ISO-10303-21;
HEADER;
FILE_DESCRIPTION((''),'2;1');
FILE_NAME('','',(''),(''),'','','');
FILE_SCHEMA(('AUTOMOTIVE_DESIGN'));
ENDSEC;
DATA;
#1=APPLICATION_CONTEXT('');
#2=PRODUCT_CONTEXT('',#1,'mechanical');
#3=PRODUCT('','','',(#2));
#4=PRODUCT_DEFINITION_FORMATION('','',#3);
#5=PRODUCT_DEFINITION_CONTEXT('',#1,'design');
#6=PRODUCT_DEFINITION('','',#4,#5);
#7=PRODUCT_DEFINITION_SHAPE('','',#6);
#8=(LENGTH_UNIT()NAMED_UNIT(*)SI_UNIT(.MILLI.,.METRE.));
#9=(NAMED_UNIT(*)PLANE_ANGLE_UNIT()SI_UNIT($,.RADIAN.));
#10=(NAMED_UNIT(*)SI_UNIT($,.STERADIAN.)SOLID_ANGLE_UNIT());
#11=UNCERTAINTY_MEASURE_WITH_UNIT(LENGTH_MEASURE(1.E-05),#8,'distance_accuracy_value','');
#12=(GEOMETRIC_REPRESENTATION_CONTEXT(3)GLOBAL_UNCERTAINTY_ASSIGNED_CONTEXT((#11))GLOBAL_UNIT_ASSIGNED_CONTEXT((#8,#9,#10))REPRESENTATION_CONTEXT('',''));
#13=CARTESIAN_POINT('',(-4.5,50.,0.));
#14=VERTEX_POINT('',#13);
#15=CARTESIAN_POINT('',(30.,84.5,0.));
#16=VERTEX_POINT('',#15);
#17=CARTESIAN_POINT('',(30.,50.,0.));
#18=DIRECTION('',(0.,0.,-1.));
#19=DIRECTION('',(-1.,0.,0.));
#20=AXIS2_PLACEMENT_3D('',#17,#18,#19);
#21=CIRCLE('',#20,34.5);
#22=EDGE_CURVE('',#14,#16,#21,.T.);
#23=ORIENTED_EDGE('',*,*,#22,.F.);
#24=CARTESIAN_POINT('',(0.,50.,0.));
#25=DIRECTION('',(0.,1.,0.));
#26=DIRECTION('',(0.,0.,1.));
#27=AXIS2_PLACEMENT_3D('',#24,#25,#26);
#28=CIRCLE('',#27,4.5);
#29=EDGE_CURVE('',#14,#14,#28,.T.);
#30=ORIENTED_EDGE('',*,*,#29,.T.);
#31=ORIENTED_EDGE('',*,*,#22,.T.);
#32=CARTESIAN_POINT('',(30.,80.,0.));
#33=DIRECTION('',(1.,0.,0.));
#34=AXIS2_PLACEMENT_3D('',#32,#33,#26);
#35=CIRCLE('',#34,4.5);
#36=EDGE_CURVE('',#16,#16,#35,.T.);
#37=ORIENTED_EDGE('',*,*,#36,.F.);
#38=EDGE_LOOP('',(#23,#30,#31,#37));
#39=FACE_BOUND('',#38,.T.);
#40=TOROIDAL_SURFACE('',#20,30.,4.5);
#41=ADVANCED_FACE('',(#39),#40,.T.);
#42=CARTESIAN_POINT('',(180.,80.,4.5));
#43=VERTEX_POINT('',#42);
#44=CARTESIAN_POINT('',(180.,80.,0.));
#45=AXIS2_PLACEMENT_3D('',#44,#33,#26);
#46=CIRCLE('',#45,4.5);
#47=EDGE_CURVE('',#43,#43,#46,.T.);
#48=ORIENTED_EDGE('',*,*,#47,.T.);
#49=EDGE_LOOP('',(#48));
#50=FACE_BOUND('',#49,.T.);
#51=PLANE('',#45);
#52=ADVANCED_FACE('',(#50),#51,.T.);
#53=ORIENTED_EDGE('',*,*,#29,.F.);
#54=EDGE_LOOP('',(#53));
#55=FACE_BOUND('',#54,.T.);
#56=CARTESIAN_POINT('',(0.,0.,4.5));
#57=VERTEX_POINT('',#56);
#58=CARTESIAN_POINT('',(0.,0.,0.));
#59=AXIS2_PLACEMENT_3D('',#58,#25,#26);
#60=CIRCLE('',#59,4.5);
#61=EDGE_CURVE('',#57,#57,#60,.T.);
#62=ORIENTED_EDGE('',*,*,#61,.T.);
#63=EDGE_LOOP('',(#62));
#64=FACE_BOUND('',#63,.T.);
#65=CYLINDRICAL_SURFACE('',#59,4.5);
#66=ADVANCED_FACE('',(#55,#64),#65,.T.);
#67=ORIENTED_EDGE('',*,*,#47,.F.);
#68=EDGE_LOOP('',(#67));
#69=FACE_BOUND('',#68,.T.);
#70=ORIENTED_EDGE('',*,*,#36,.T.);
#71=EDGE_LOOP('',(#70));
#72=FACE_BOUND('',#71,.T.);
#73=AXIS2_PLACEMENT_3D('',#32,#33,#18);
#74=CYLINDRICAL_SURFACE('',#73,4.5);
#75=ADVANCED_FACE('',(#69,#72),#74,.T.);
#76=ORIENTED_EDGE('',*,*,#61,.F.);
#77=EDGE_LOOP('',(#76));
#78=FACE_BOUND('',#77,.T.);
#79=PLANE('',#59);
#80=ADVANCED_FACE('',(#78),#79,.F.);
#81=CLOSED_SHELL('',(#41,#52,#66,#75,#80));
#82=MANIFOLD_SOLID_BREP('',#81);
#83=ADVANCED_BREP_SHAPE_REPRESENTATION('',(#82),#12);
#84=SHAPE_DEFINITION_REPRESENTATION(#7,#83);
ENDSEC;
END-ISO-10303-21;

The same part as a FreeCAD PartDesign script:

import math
import FreeCAD as App
import Part
import Sketcher
from FreeCAD import Vector

doc = App.newDocument("Part")
body = doc.addObject("PartDesign::Body", "Body")

sketch1 = body.newObject("Sketcher::SketchObject", "Sketch")
sketch1.AttachmentSupport = (doc.getObject("XZ_Plane"), [""])
sketch1.MapMode = "FlatFace"
sketch1.addGeometry(Part.Circle(Vector(0, 0, 0), Vector(0, 0, 1), 4.5), False)
sketch1.addConstraint([
    Sketcher.Constraint("Coincident", 0, 3, -1, 1),
    Sketcher.Constraint("Diameter", 0, 9.0),
])

sketch2 = body.newObject("Sketcher::SketchObject", "Sketch001")
sketch2.AttachmentSupport = (doc.getObject("XY_Plane"), [""])
sketch2.MapMode = "FlatFace"
sketch2.addGeometry([
    Part.LineSegment(Vector(0, 0, 0), Vector(0, 50, 0)),
    Part.ArcOfCircle(Part.Circle(Vector(30, 50, 0), Vector(0, 0, 1), 30), math.radians(90), math.radians(180)),
    Part.LineSegment(Vector(30, 80, 0), Vector(180, 80, 0)),
], False)
sketch2.addConstraint([
    Sketcher.Constraint("Tangent", 0, 2, 1, 2),
    Sketcher.Constraint("Tangent", 1, 1, 2, 1),
    Sketcher.Constraint("Vertical", 0),
    Sketcher.Constraint("Horizontal", 2),
    Sketcher.Constraint("Coincident", 0, 1, -1, 1),
    Sketcher.Constraint("Radius", 1, 30.0),
    Sketcher.Constraint("DistanceX", 2, 1, 2, 2, 150.0),
    Sketcher.Constraint("DistanceY", 0, 1, 0, 2, 50.0),
])
doc.recompute()

additivepipe = body.newObject("PartDesign::AdditivePipe", "AdditivePipe")
additivepipe.Profile = sketch1
additivepipe.Spine = (sketch2, ["Edge1", "Edge2", "Edge3"])

doc.recompute()
